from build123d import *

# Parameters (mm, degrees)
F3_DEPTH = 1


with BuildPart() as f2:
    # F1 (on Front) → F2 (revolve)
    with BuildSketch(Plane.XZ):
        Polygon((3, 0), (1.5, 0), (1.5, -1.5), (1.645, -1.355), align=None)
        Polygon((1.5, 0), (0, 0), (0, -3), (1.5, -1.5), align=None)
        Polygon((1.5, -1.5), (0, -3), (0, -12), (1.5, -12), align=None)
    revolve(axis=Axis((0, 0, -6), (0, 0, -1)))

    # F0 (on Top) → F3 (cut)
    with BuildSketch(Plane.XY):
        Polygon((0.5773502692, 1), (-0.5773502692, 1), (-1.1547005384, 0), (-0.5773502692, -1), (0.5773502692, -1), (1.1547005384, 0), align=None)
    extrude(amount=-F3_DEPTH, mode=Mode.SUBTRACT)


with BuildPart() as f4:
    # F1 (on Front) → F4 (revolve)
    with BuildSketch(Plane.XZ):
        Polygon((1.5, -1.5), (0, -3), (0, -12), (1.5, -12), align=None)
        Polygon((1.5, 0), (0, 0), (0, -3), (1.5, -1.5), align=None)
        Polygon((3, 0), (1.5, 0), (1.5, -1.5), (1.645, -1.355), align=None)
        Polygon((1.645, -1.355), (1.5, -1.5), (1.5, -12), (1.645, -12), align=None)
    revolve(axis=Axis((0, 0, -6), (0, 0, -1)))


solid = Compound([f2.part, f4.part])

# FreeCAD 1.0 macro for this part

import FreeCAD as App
import Part
import Sketcher
Q = App.Units.Quantity


def add_polygon(sketch, points):
    """Adds a closed chain of lines whose ends are joined by coincident constraints."""
    first, n = sketch.GeometryCount, len(points)
    for a, b in zip(points, points[1:] + points[:1]):
        sketch.addGeometry(Part.LineSegment(App.Vector(*a, 0), App.Vector(*b, 0)), False)
    for i in range(n):
        sketch.addConstraint(Sketcher.Constraint("Coincident", first + i, 2, first + (i + 1) % n, 1))

doc = App.newDocument("Part")
body = doc.addObject("PartDesign::Body", "Body")

sketch1 = body.newObject("Sketcher::SketchObject", "Sketch")
sketch1.AttachmentSupport = (doc.getObject("XZ_Plane"), [""])
sketch1.MapMode = "FlatFace"
add_polygon(sketch1, [(3, 0), (0, 0), (0, -12), (1.5, -12), (1.5, -1.5)])
sketch1.addConstraint([
    Sketcher.Constraint("Horizontal", 0),
    Sketcher.Constraint("Vertical", 1),
    Sketcher.Constraint("Horizontal", 2),
    Sketcher.Constraint("Vertical", 3),
    Sketcher.Constraint("Coincident", 0, 2, -1, 1),
    Sketcher.Constraint("DistanceX", 0, 2, 0, 1, Q("3 mm")),
    Sketcher.Constraint("DistanceY", 1, 2, 1, 1, Q("12 mm")),
    Sketcher.Constraint("Angle", 4, Q("45 deg")),
    Sketcher.Constraint("DistanceX", 2, 1, 2, 2, Q("1.5 mm")),
])
revolution = body.newObject("PartDesign::Revolution", "Revolution")
revolution.Profile = sketch1
revolution.ReferenceAxis = (sketch1, ["V_Axis"])
revolution.Angle = 360

sketch2 = body.newObject("Sketcher::SketchObject", "Sketch001")
sketch2.AttachmentSupport = (doc.getObject("XY_Plane"), [""])
sketch2.MapMode = "FlatFace"
add_polygon(sketch2, [(0.6, 1), (-0.6, 1), (-1.2, 0), (-0.6, -1), (0.6, -1), (1.2, 0)])
sketch2.addConstraint([
    Sketcher.Constraint("Horizontal", 0),
    Sketcher.Constraint("Horizontal", 3),
    Sketcher.Constraint("Symmetric", 0, 2, 3, 2, -1, 1),
    Sketcher.Constraint("Symmetric", 1, 2, 4, 2, -1, 1),
    Sketcher.Constraint("PointOnObject", 1, 2, -1),
    Sketcher.Constraint("Parallel", 2, 5),
    Sketcher.Constraint("Vertical", 0, 2, 2, 2),
    Sketcher.Constraint("Angle", 1, Q("-120 deg")),
    Sketcher.Constraint("DistanceY", -1, 1, 0, 2, Q("1 mm")),
    Sketcher.Constraint("DistanceX", 0, 2, 0, 1, Q("1.154701 mm")),
])
pocket1 = body.newObject("PartDesign::Pocket", "Pocket")
pocket1.Profile = sketch2
pocket1.Length = 1
body2 = doc.addObject("PartDesign::Body", "Body001")

sketch3 = body2.newObject("Sketcher::SketchObject", "Sketch002")
sketch3.AttachmentSupport = (doc.getObject("XZ_Plane001"), [""])
sketch3.MapMode = "FlatFace"
add_polygon(sketch3, [(0, -12), (1.6, -12), (1.6, -1.4), (3, 0), (0, 0)])
sketch3.addConstraint([
    Sketcher.Constraint("Horizontal", 0),
    Sketcher.Constraint("Vertical", 1),
    Sketcher.Constraint("Horizontal", 3),
    Sketcher.Constraint("Vertical", 4),
    Sketcher.Constraint("Coincident", 3, 2, -1, 1),
    Sketcher.Constraint("DistanceX", 3, 2, 3, 1, Q("3 mm")),
    Sketcher.Constraint("DistanceY", 4, 2, 4, 1, Q("12 mm")),
    Sketcher.Constraint("Angle", 2, Q("45 deg")),
    Sketcher.Constraint("DistanceX", 0, 1, 0, 2, Q("1.645 mm")),
])
revolution2 = body2.newObject("PartDesign::Revolution", "Revolution001")
revolution2.Profile = sketch3
revolution2.ReferenceAxis = (sketch3, ["V_Axis"])
revolution2.Angle = 360

doc.recompute()
